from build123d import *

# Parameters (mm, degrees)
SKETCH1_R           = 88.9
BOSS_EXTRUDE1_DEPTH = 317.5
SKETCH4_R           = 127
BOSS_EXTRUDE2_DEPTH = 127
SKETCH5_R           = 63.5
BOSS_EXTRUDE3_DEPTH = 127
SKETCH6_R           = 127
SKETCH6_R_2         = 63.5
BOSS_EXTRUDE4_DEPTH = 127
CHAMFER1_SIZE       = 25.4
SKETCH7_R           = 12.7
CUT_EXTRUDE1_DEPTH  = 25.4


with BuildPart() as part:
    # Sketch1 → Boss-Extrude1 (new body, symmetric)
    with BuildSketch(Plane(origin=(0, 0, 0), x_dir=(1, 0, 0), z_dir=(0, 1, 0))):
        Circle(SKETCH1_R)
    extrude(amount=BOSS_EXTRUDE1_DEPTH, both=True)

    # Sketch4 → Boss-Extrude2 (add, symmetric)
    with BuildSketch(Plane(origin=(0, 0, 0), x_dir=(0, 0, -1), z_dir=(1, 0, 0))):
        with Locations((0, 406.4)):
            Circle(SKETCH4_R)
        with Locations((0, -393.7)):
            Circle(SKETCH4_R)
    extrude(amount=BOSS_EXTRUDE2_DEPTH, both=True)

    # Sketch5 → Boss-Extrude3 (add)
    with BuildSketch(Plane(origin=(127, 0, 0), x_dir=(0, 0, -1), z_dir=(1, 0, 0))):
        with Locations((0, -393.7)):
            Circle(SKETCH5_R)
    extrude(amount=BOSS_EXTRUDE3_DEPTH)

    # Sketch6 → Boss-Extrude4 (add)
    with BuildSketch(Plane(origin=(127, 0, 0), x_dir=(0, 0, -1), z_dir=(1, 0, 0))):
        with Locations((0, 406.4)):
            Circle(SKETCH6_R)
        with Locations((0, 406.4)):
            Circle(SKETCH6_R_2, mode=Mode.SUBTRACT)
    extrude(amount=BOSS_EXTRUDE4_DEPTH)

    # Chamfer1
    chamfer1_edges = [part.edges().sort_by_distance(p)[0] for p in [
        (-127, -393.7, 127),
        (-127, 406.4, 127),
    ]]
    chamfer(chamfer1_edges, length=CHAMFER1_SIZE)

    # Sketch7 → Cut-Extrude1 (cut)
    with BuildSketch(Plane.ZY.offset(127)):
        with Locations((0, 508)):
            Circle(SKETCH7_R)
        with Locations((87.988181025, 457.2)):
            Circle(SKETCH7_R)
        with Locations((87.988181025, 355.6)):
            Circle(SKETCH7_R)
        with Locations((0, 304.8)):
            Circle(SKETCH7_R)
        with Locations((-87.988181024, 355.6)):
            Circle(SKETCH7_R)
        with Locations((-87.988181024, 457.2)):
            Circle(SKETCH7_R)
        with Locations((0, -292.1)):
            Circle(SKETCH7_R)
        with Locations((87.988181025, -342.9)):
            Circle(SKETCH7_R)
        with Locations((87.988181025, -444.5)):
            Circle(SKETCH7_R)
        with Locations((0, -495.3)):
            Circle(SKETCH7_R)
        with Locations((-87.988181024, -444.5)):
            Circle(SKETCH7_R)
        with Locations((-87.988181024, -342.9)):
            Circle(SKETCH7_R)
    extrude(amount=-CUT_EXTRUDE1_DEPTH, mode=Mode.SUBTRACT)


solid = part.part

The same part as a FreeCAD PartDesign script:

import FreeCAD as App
import Part
import Sketcher
Q = App.Units.Quantity


def edges_at(feature, points):
    """Names of the edges that pass closest to the given points."""
    edges = feature.Shape.Edges
    near = lambda p: min(range(len(edges)), key=lambda i: edges[i].distToShape(Part.Vertex(*p))[0])
    return sorted({f"Edge{near(p) + 1}" for p in points})

doc = App.newDocument("Part")
params = doc.addObject("Spreadsheet::Sheet", "Params")
for row, (alias, value) in enumerate([
    ("sketch1_diameter", "7 in"),
    ("pad1_length", "25 in"),
    ("sketch2_diameter", "10 in"),
    ("pad2_length", "10 in"),
    ("sketch3_diameter", "5 in"),
    ("pad3_length", "5 in"),
    ("sketch4_diameter", "10 in"),
    ("sketch4_diameter2", "5 in"),
    ("pad4_length", "5 in"),
    ("chamfer_size", "1 in"),
    ("sketch5_diameter", "1 in"),
    ("pocket1_length", "1 in"),
], start=1):
    params.set(f"A{row}", alias)
    params.set(f"B{row}", "=" + value)
    params.setAlias(f"B{row}", alias)

body = doc.addObject("PartDesign::Body", "Body")

# Sketch on XZ plane
sketch1 = body.newObject("Sketcher::SketchObject", "Sketch")
sketch1.AttachmentSupport = (doc.getObject("XZ_Plane"), [""])
sketch1.MapMode = "FlatFace"
sketch1.addGeometry(Part.Circle(App.Vector(0, 0, 0), App.Vector(0, 0, 1), 89), False)
sketch1.addConstraint(Sketcher.Constraint("Coincident", 0, 3, -1, 1))
sketch1.addConstraint(Sketcher.Constraint("Diameter", 0, Q("7 in")))
sketch1.setExpression("Constraints[1]", "Params.sketch1_diameter")
pad1 = body.newObject("PartDesign::Pad", "Pad")
pad1.Profile = sketch1
pad1.setExpression("Length", "Params.pad1_length")
pad1.Midplane = True

# Sketch on YZ plane
sketch2 = body.newObject("Sketcher::SketchObject", "Sketch001")
sketch2.AttachmentSupport = (doc.getObject("YZ_Plane"), [""])
sketch2.MapMode = "FlatFace"
sketch2.addGeometry(Part.Circle(App.Vector(406, 0, 0), App.Vector(0, 0, 1), 127), False)
sketch2.addGeometry(Part.Circle(App.Vector(-394, 0, 0), App.Vector(0, 0, 1), 127), False)
sketch2.addConstraint(Sketcher.Constraint("Equal", 0, 1))
sketch2.addConstraint(Sketcher.Constraint("PointOnObject", 0, 3, -1))
sketch2.addConstraint(Sketcher.Constraint("PointOnObject", 1, 3, -1))
sketch2.addConstraint(Sketcher.Constraint("Diameter", 0, Q("10 in")))
sketch2.addConstraint(Sketcher.Constraint("DistanceX", -1, 1, 0, 3, Q("16 in")))
sketch2.addConstraint(Sketcher.Constraint("DistanceX", 1, 3, -1, 1, Q("15.5 in")))
sketch2.setExpression("Constraints[3]", "Params.sketch2_diameter")
pad2 = body.newObject("PartDesign::Pad", "Pad001")
pad2.Profile = sketch2
pad2.setExpression("Length", "Params.pad2_length")
pad2.Midplane = True

# Sketch on YZ plane
sketch3 = body.newObject("Sketcher::SketchObject", "Sketch002")
sketch3.AttachmentSupport = (doc.getObject("YZ_Plane"), [""])
sketch3.MapMode = "FlatFace"
sketch3.AttachmentOffset = App.Placement(App.Vector(0, 0, 5 * 25.4), App.Rotation())
sketch3.addGeometry(Part.Circle(App.Vector(-394, 0, 0), App.Vector(0, 0, 1), 64), False)
sketch3.addConstraint(Sketcher.Constraint("PointOnObject", 0, 3, -1))
sketch3.addConstraint(Sketcher.Constraint("Diameter", 0, Q("5 in")))
sketch3.addConstraint(Sketcher.Constraint("DistanceX", 0, 3, -1, 1, Q("15.5 in")))
sketch3.setExpression("Constraints[1]", "Params.sketch3_diameter")
pad3 = body.newObject("PartDesign::Pad", "Pad002")
pad3.Profile = sketch3
pad3.setExpression("Length", "Params.pad3_length")

# Sketch on YZ plane
sketch4 = body.newObject("Sketcher::SketchObject", "Sketch003")
sketch4.AttachmentSupport = (doc.getObject("YZ_Plane"), [""])
sketch4.MapMode = "FlatFace"
sketch4.AttachmentOffset = App.Placement(App.Vector(0, 0, 5 * 25.4), App.Rotation())
sketch4.addGeometry(Part.Circle(App.Vector(406, 0, 0), App.Vector(0, 0, 1), 127), False)
sketch4.addGeometry(Part.Circle(App.Vector(406, 0, 0), App.Vector(0, 0, 1), 64), False)
sketch4.addConstraint(Sketcher.Constraint("Coincident", 1, 3, 0, 3))
sketch4.addConstraint(Sketcher.Constraint("PointOnObject", 0, 3, -1))
sketch4.addConstraint(Sketcher.Constraint("Diameter", 0, Q("10 in")))
sketch4.addConstraint(Sketcher.Constraint("Diameter", 1, Q("5 in")))
sketch4.addConstraint(Sketcher.Constraint("DistanceX", -1, 1, 0, 3, Q("16 in")))
sketch4.setExpression("Constraints[2]", "Params.sketch4_diameter")
sketch4.setExpression("Constraints[3]", "Params.sketch4_diameter2")
pad4 = body.newObject("PartDesign::Pad", "Pad003")
pad4.Profile = sketch4
pad4.setExpression("Length", "Params.pad4_length")
doc.recompute()

chamfer = body.newObject("PartDesign::Chamfer", "Chamfer")
chamfer.Base = (pad4, edges_at(pad4, [(-127, -393.7, 127), (-127, 406.4, 127)]))
chamfer.setExpression("Size", "Params.chamfer_size")

# Sketch on YZ plane
sketch5 = body.newObject("Sketcher::SketchObject", "Sketch004")
sketch5.AttachmentSupport = (doc.getObject("YZ_Plane"), [""])
sketch5.MapMode = "FlatFace"
sketch5.AttachmentOffset = App.Placement(App.Vector(0, 0, -5 * 25.4), App.Rotation())
sketch5.addGeometry(Part.Circle(App.Vector(508, 0, 0), App.Vector(0, 0, 1), 13), False)
sketch5.addGeometry(Part.Circle(App.Vector(457, 88, 0), App.Vector(0, 0, 1), 13), False)
sketch5.addGeometry(Part.Circle(App.Vector(356, 88, 0), App.Vector(0, 0, 1), 13), False)
sketch5.addGeometry(Part.Circle(App.Vector(305, 0, 0), App.Vector(0, 0, 1), 13), False)
sketch5.addGeometry(Part.Circle(App.Vector(356, -88, 0), App.Vector(0, 0, 1), 13), False)
sketch5.addGeometry(Part.Circle(App.Vector(457, -88, 0), App.Vector(0, 0, 1), 13), False)
sketch5.addGeometry(Part.Circle(App.Vector(-292, 0, 0), App.Vector(0, 0, 1), 13), False)
sketch5.addGeometry(Part.Circle(App.Vector(-343, 88, 0), App.Vector(0, 0, 1), 13), False)
sketch5.addGeometry(Part.Circle(App.Vector(-444, 88, 0), App.Vector(0, 0, 1), 13), False)
sketch5.addGeometry(Part.Circle(App.Vector(-495, 0, 0), App.Vector(0, 0, 1), 13), False)
sketch5.addGeometry(Part.Circle(App.Vector(-444, -88, 0), App.Vector(0, 0, 1), 13), False)
sketch5.addGeometry(Part.Circle(App.Vector(-343, -88, 0), App.Vector(0, 0, 1), 13), False)
sketch5.addConstraint(Sketcher.Constraint("Equal", 0, 1))
sketch5.addConstraint(Sketcher.Constraint("Equal", 1, 2))
sketch5.addConstraint(Sketcher.Constraint("Equal", 2, 3))
sketch5.addConstraint(Sketcher.Constraint("Equal", 3, 4))
sketch5.addConstraint(Sketcher.Constraint("Equal", 4, 5))
sketch5.addConstraint(Sketcher.Constraint("Equal", 5, 6))
sketch5.addConstraint(Sketcher.Constraint("Equal", 6, 7))
sketch5.addConstraint(Sketcher.Constraint("Equal", 7, 8))
sketch5.addConstraint(Sketcher.Constraint("Equal", 8, 9))
sketch5.addConstraint(Sketcher.Constraint("Equal", 9, 10))
sketch5.addConstraint(Sketcher.Constraint("Equal", 10, 11))
sketch5.addConstraint(Sketcher.Constraint("Symmetric", 2, 3, 4, 3, -1))
sketch5.addConstraint(Sketcher.Constraint("Symmetric", 1, 3, 5, 3, -1))
sketch5.addConstraint(Sketcher.Constraint("Symmetric", 8, 3, 10, 3, -1))
sketch5.addConstraint(Sketcher.Constraint("Symmetric", 7, 3, 11, 3, -1))
sketch5.addConstraint(Sketcher.Constraint("PointOnObject", 0, 3, -1))
sketch5.addConstraint(Sketcher.Constraint("PointOnObject", 3, 3, -1))
sketch5.addConstraint(Sketcher.Constraint("PointOnObject", 6, 3, -1))
sketch5.addConstraint(Sketcher.Constraint("PointOnObject", 9, 3, -1))
sketch5.addConstraint(Sketcher.Constraint("Horizontal", 1, 3, 2, 3))
sketch5.addConstraint(Sketcher.Constraint("Horizontal", 2, 3, 7, 3))
sketch5.addConstraint(Sketcher.Constraint("Horizontal", 7, 3, 8, 3))
sketch5.addConstraint(Sketcher.Constraint("Diameter", 0, Q("1 in")))
sketch5.addConstraint(Sketcher.Constraint("DistanceX", -1, 1, 0, 3, Q("20 in")))
sketch5.addConstraint(Sketcher.Constraint("DistanceX", -1, 1, 1, 3, Q("18 in")))
sketch5.addConstraint(Sketcher.Constraint("DistanceX", -1, 1, 2, 3, Q("14 in")))
sketch5.addConstraint(Sketcher.Constraint("DistanceX", -1, 1, 3, 3, Q("12 in")))
sketch5.addConstraint(Sketcher.Constraint("DistanceX", 7, 3, 6, 3, Q("2 in")))
sketch5.addConstraint(Sketcher.Constraint("DistanceX", 8, 3, 7, 3, Q("4 in")))
sketch5.addConstraint(Sketcher.Constraint("DistanceX", 9, 3, 8, 3, Q("2 in")))
sketch5.addConstraint(Sketcher.Constraint("DistanceX", 6, 3, -1, 1, Q("11.5 in")))
sketch5.addConstraint(Sketcher.Constraint("DistanceY", -1, 1, 1, 3, 87.988181))
sketch5.setExpression("Constraints[22]", "Params.sketch5_diameter")
pocket1 = body.newObject("PartDesign::Pocket", "Pocket")
pocket1.Profile = sketch5
pocket1.setExpression("Length", "Params.pocket1_length")
pocket1.Reversed = True

doc.recompute()
